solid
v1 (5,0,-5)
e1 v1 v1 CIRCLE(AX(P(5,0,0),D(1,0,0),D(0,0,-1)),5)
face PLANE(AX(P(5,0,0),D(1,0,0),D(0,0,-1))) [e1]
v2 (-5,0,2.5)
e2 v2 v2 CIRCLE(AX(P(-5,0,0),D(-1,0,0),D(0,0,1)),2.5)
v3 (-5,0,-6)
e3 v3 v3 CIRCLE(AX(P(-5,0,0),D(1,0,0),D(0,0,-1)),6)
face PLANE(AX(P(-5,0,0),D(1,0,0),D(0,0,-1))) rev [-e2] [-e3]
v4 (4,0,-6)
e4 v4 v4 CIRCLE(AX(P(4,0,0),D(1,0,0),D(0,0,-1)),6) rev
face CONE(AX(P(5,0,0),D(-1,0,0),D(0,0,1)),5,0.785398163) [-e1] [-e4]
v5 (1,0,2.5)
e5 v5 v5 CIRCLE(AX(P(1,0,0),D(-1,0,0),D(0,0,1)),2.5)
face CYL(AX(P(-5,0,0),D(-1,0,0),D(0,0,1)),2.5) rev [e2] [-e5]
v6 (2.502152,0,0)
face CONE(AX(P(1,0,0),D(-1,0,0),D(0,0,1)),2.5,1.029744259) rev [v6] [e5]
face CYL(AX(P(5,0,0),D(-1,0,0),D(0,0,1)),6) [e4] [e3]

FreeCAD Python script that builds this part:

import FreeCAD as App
import Part
import Sketcher
Q = App.Units.Quantity


def edges_at(feature, points):
    """Names of the edges that pass closest to the given points."""
    edges = feature.Shape.Edges
    near = lambda p: min(range(len(edges)), key=lambda i: edges[i].distToShape(Part.Vertex(*p))[0])
    return sorted({f"Edge{near(p) + 1}" for p in points})


def add_polygon(sketch, points):
    """Adds a closed chain of lines whose ends are joined by coincident constraints."""
    first, n = sketch.GeometryCount, len(points)
    for a, b in zip(points, points[1:] + points[:1]):
        sketch.addGeometry(Part.LineSegment(App.Vector(*a, 0), App.Vector(*b, 0)), False)
    for i in range(n):
        sketch.addConstraint(Sketcher.Constraint("Coincident", first + i, 2, first + (i + 1) % n, 1))

doc = App.newDocument("Part")
params = doc.addObject("Spreadsheet::Sheet", "Params")
for row, (alias, value) in enumerate([
    ("sketch1_diameter", "12 mm"),
    ("pad1_length", "10 mm"),
    ("sketch2_width", "6 mm"),
    ("sketch2_height", "2.5 mm"),
    ("groove_angle", "360 deg"),
    ("chamfer_size", "1 mm"),
], start=1):
    params.set(f"A{row}", alias)
    params.set(f"B{row}", "=" + value)
    params.setAlias(f"B{row}", alias)

body = doc.addObject("PartDesign::Body", "Body")

# Sketch on YZ plane
sketch1 = body.newObject("Sketcher::SketchObject", "Sketch")
sketch1.AttachmentSupport = (doc.getObject("YZ_Plane"), [""])
sketch1.MapMode = "FlatFace"
sketch1.addGeometry(Part.Circle(App.Vector(0, 0, 0), App.Vector(0, 0, 1), 6), False)
sketch1.addConstraint(Sketcher.Constraint("Coincident", 0, 3, -1, 1))
sketch1.addConstraint(Sketcher.Constraint("Diameter", 0, Q("12 mm")))
sketch1.setExpression("Constraints[1]", "Params.sketch1_diameter")
pad1 = body.newObject("PartDesign::Pad", "Pad")
pad1.Profile = sketch1
pad1.setExpression("Length", "Params.pad1_length")
pad1.Midplane = True

# Sketch on XZ plane
sketch2 = body.newObject("Sketcher::SketchObject", "Sketch001")
sketch2.AttachmentSupport = (doc.getObject("XZ_Plane"), [""])
sketch2.MapMode = "FlatFace"
add_polygon(sketch2, [(2.502152, 0), (-5, 0), (-5, 2.5), (1, 2.5)])  # lines 0-3
sketch2.addConstraint(Sketcher.Constraint("Horizontal", 0))
sketch2.addConstraint(Sketcher.Constraint("Vertical", 1))
sketch2.addConstraint(Sketcher.Constraint("Horizontal", 2))
sketch2.addConstraint(Sketcher.Constraint("PointOnObject", 0, 2, -1))
sketch2.addConstraint(Sketcher.Constraint("DistanceX", 2, 1, 2, 2, Q("6 mm")))
sketch2.addConstraint(Sketcher.Constraint("Angle", 3, Q("-59 deg")))
sketch2.addConstraint(Sketcher.Constraint("DistanceY", 1, 1, 1, 2, Q("2.5 mm")))
sketch2.addConstraint(Sketcher.Constraint("DistanceX", 0, 2, -1, 1, Q("5 mm")))
sketch2.setExpression("Constraints[8]", "Params.sketch2_width")
sketch2.setExpression("Constraints[10]", "Params.sketch2_height")
groove = body.newObject("PartDesign::Groove", "Groove")
groove.Profile = sketch2
groove.ReferenceAxis = (sketch2, ["H_Axis"])
groove.setExpression("Angle", "Params.groove_angle")
doc.recompute()

chamfer = body.newObject("PartDesign::Chamfer", "Chamfer")
chamfer.Base = (groove, edges_at(groove, [(5, 0, 6)]))
chamfer.setExpression("Size", "Params.chamfer_size")

doc.recompute()
